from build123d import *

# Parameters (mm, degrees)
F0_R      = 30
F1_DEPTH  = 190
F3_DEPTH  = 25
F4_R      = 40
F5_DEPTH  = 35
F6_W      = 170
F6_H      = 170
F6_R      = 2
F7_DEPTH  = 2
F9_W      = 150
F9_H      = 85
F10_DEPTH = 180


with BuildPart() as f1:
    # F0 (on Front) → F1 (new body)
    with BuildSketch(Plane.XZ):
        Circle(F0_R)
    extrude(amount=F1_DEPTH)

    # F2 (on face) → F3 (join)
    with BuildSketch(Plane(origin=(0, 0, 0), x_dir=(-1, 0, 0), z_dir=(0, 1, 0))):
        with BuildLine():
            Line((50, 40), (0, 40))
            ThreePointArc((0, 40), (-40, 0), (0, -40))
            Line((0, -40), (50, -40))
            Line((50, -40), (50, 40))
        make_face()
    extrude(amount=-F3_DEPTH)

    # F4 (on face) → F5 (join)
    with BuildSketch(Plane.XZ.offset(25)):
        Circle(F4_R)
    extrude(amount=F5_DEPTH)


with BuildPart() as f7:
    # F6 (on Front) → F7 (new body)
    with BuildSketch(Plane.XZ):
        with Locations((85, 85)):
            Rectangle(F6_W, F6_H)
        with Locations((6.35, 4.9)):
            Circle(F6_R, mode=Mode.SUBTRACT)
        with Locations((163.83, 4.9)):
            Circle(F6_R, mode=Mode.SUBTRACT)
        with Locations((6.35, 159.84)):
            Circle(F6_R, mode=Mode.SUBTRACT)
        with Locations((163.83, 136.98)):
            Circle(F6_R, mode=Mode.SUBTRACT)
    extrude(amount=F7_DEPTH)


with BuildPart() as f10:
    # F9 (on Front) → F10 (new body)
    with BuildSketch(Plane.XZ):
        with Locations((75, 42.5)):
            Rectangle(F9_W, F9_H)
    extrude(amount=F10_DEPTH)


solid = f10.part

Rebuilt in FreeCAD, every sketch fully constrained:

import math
import FreeCAD as App
import Part
import Sketcher
from FreeCAD import Vector
Q = App.Units.Quantity

doc = App.newDocument("Part")
params = doc.addObject("Spreadsheet::Sheet", "Params")
for row, (alias, value) in enumerate([
    ("sketch1_diameter", "60 mm"),
    ("pad1_length", "190 mm"),
    ("sketch2_radius", "40 mm"),
    ("sketch2_width", "50 mm"),
    ("pad2_length", "25 mm"),
    ("sketch3_diameter", "80 mm"),
    ("pad3_length", "35 mm"),
    ("sketch4_diameter", "4 mm"),
    ("sketch4_width", "170 mm"),
    ("pad4_length", "2 mm"),
    ("sketch5_width", "150 mm"),
    ("sketch5_height", "85 mm"),
    ("pad5_length", "180 mm"),
], start=1):
    params.set(f"A{row}", alias)
    params.set(f"B{row}", "=" + value)
    params.setAlias(f"B{row}", alias)

body = doc.addObject("PartDesign::Body", "Body")

# Sketch on XZ plane
sketch1 = body.newObject("Sketcher::SketchObject", "Sketch")
sketch1.AttachmentSupport = (doc.getObject("XZ_Plane"), [""])
sketch1.MapMode = "FlatFace"
sketch1.addGeometry(Part.Circle(Vector(0, 0, 0), Vector(0, 0, 1), 30), False)
sketch1.addConstraint(Sketcher.Constraint("Coincident", 0, 3, -1, 1))
sketch1.addConstraint(Sketcher.Constraint("Diameter", 0, Q("60 mm")))
sketch1.setExpression("Constraints[1]", "Params.sketch1_diameter")
pad1 = body.newObject("PartDesign::Pad", "Pad")
pad1.Profile = sketch1
pad1.setExpression("Length", "Params.pad1_length")

# Sketch on XZ plane
sketch2 = body.newObject("Sketcher::SketchObject", "Sketch001")
sketch2.AttachmentSupport = (doc.getObject("XZ_Plane"), [""])
sketch2.MapMode = "FlatFace"
sketch2.addGeometry(Part.LineSegment(Vector(-50, 40, 0), Vector(0, 40, 0)), False)
sketch2.addGeometry(Part.ArcOfCircle(Part.Circle(Vector(0, 0, 0), Vector(0, 0, 1), 40), math.radians(-90), math.radians(90)), False)
sketch2.addGeometry(Part.LineSegment(Vector(0, -40, 0), Vector(-50, -40, 0)), False)
sketch2.addGeometry(Part.LineSegment(Vector(-50, -40, 0), Vector(-50, 40, 0)), False)
sketch2.addConstraint(Sketcher.Constraint("Tangent", 0, 2, 1, 2))
sketch2.addConstraint(Sketcher.Constraint("Tangent", 1, 1, 2, 1))
sketch2.addConstraint(Sketcher.Constraint("Coincident", 2, 2, 3, 1))
sketch2.addConstraint(Sketcher.Constraint("Coincident", 3, 2, 0, 1))
sketch2.addConstraint(Sketcher.Constraint("Horizontal", 0))
sketch2.addConstraint(Sketcher.Constraint("Horizontal", 2))
sketch2.addConstraint(Sketcher.Constraint("Vertical", 3))
sketch2.addConstraint(Sketcher.Constraint("Coincident", 1, 3, -1, 1))
sketch2.addConstraint(Sketcher.Constraint("Radius", 1, Q("40 mm")))
sketch2.addConstraint(Sketcher.Constraint("DistanceX", 0, 1, 0, 2, Q("50 mm")))
sketch2.setExpression("Constraints[8]", "Params.sketch2_radius")
sketch2.setExpression("Constraints[9]", "Params.sketch2_width")
pad2 = body.newObject("PartDesign::Pad", "Pad001")
pad2.Profile = sketch2
pad2.setExpression("Length", "Params.pad2_length")

# Sketch on XZ plane
sketch3 = body.newObject("Sketcher::SketchObject", "Sketch002")
sketch3.AttachmentSupport = (doc.getObject("XZ_Plane"), [""])
sketch3.MapMode = "FlatFace"
sketch3.AttachmentOffset = App.Placement(Vector(0, 0, 25), App.Rotation())
sketch3.addGeometry(Part.Circle(Vector(0, 0, 0), Vector(0, 0, 1), 40), False)
sketch3.addConstraint(Sketcher.Constraint("Coincident", 0, 3, -1, 1))
sketch3.addConstraint(Sketcher.Constraint("Diameter", 0, Q("80 mm")))
sketch3.setExpression("Constraints[1]", "Params.sketch3_diameter")
pad3 = body.newObject("PartDesign::Pad", "Pad002")
pad3.Profile = sketch3
pad3.setExpression("Length", "Params.pad3_length")
body2 = doc.addObject("PartDesign::Body", "Body001")

# Sketch on XZ plane
sketch4 = body2.newObject("Sketcher::SketchObject", "Sketch003")
sketch4.AttachmentSupport = (doc.getObject("XZ_Plane001"), [""])
sketch4.MapMode = "FlatFace"
sketch4.addGeometry(Part.LineSegment(Vector(0, 170, 0), Vector(0, 0, 0)), False)
sketch4.addGeometry(Part.LineSegment(Vector(0, 0, 0), Vector(170, 0, 0)), False)
sketch4.addGeometry(Part.LineSegment(Vector(170, 0, 0), Vector(170, 170, 0)), False)
sketch4.addGeometry(Part.LineSegment(Vector(170, 170, 0), Vector(0, 170, 0)), False)
sketch4.addGeometry(Part.Circle(Vector(6.3, 4.9, 0), Vector(0, 0, 1), 2), False)
sketch4.addGeometry(Part.Circle(Vector(163.8, 4.9, 0), Vector(0, 0, 1), 2), False)
sketch4.addGeometry(Part.Circle(Vector(6.3, 159.8, 0), Vector(0, 0, 1), 2), False)
sketch4.addGeometry(Part.Circle(Vector(163.8, 137, 0), Vector(0, 0, 1), 2), False)
sketch4.addConstraint(Sketcher.Constraint("Coincident", 0, 2, 1, 1))
sketch4.addConstraint(Sketcher.Constraint("Coincident", 1, 2, 2, 1))
sketch4.addConstraint(Sketcher.Constraint("Coincident", 2, 2, 3, 1))
sketch4.addConstraint(Sketcher.Constraint("Coincident", 3, 2, 0, 1))
sketch4.addConstraint(Sketcher.Constraint("Vertical", 0))
sketch4.addConstraint(Sketcher.Constraint("Horizontal", 1))
sketch4.addConstraint(Sketcher.Constraint("Vertical", 2))
sketch4.addConstraint(Sketcher.Constraint("Horizontal", 3))
sketch4.addConstraint(Sketcher.Constraint("Coincident", 0, 2, -1, 1))
sketch4.addConstraint(Sketcher.Constraint("Equal", 4, 5))
sketch4.addConstraint(Sketcher.Constraint("Equal", 5, 6))
sketch4.addConstraint(Sketcher.Constraint("Equal", 6, 7))
sketch4.addConstraint(Sketcher.Constraint("Horizontal", 4, 3, 5, 3))
sketch4.addConstraint(Sketcher.Constraint("Vertical", 4, 3, 6, 3))
sketch4.addConstraint(Sketcher.Constraint("Vertical", 5, 3, 7, 3))
sketch4.addConstraint(Sketcher.Constraint("Equal", 3, 0))
sketch4.addConstraint(Sketcher.Constraint("Diameter", 4, Q("4 mm")))
sketch4.addConstraint(Sketcher.Constraint("DistanceX", 1, 1, 1, 2, Q("170 mm")))
sketch4.addConstraint(Sketcher.Constraint("DistanceY", -1, 1, 4, 3, Q("4.9 mm")))
sketch4.addConstraint(Sketcher.Constraint("DistanceX", -1, 1, 4, 3, Q("6.35 mm")))
sketch4.addConstraint(Sketcher.Constraint("DistanceX", -1, 1, 5, 3, Q("163.83 mm")))
sketch4.addConstraint(Sketcher.Constraint("DistanceY", -1, 1, 6, 3, Q("159.84 mm")))
sketch4.addConstraint(Sketcher.Constraint("DistanceY", -1, 1, 7, 3, Q("136.98 mm")))
sketch4.setExpression("Constraints[16]", "Params.sketch4_diameter")
sketch4.setExpression("Constraints[17]", "Params.sketch4_width")
pad4 = body2.newObject("PartDesign::Pad", "Pad003")
pad4.Profile = sketch4
pad4.setExpression("Length", "Params.pad4_length")
body3 = doc.addObject("PartDesign::Body", "Body002")

# Sketch on XZ plane
sketch5 = body3.newObject("Sketcher::SketchObject", "Sketch004")
sketch5.AttachmentSupport = (doc.getObject("XZ_Plane002"), [""])
sketch5.MapMode = "FlatFace"
sketch5.addGeometry(Part.LineSegment(Vector(0, 85, 0), Vector(0, 0, 0)), False)
sketch5.addGeometry(Part.LineSegment(Vector(0, 0, 0), Vector(150, 0, 0)), False)
sketch5.addGeometry(Part.LineSegment(Vector(150, 0, 0), Vector(150, 85, 0)), False)
sketch5.addGeometry(Part.LineSegment(Vector(150, 85, 0), Vector(0, 85, 0)), False)
sketch5.addConstraint(Sketcher.Constraint("Coincident", 0, 2, 1, 1))
sketch5.addConstraint(Sketcher.Constraint("Coincident", 1, 2, 2, 1))
sketch5.addConstraint(Sketcher.Constraint("Coincident", 2, 2, 3, 1))
sketch5.addConstraint(Sketcher.Constraint("Coincident", 3, 2, 0, 1))
sketch5.addConstraint(Sketcher.Constraint("Vertical", 0))
sketch5.addConstraint(Sketcher.Constraint("Horizontal", 1))
sketch5.addConstraint(Sketcher.Constraint("Vertical", 2))
sketch5.addConstraint(Sketcher.Constraint("Horizontal", 3))
sketch5.addConstraint(Sketcher.Constraint("Coincident", 0, 2, -1, 1))
sketch5.addConstraint(Sketcher.Constraint("DistanceX", 1, 1, 1, 2, Q("150 mm")))
sketch5.addConstraint(Sketcher.Constraint("DistanceY", 0, 2, 0, 1, Q("85 mm")))
sketch5.setExpression("Constraints[9]", "Params.sketch5_width")
sketch5.setExpression("Constraints[10]", "Params.sketch5_height")
pad5 = body3.newObject("PartDesign::Pad", "Pad004")
pad5.Profile = sketch5
pad5.setExpression("Length", "Params.pad5_length")
body.Visibility = False
body2.Visibility = False

doc.recompute()
